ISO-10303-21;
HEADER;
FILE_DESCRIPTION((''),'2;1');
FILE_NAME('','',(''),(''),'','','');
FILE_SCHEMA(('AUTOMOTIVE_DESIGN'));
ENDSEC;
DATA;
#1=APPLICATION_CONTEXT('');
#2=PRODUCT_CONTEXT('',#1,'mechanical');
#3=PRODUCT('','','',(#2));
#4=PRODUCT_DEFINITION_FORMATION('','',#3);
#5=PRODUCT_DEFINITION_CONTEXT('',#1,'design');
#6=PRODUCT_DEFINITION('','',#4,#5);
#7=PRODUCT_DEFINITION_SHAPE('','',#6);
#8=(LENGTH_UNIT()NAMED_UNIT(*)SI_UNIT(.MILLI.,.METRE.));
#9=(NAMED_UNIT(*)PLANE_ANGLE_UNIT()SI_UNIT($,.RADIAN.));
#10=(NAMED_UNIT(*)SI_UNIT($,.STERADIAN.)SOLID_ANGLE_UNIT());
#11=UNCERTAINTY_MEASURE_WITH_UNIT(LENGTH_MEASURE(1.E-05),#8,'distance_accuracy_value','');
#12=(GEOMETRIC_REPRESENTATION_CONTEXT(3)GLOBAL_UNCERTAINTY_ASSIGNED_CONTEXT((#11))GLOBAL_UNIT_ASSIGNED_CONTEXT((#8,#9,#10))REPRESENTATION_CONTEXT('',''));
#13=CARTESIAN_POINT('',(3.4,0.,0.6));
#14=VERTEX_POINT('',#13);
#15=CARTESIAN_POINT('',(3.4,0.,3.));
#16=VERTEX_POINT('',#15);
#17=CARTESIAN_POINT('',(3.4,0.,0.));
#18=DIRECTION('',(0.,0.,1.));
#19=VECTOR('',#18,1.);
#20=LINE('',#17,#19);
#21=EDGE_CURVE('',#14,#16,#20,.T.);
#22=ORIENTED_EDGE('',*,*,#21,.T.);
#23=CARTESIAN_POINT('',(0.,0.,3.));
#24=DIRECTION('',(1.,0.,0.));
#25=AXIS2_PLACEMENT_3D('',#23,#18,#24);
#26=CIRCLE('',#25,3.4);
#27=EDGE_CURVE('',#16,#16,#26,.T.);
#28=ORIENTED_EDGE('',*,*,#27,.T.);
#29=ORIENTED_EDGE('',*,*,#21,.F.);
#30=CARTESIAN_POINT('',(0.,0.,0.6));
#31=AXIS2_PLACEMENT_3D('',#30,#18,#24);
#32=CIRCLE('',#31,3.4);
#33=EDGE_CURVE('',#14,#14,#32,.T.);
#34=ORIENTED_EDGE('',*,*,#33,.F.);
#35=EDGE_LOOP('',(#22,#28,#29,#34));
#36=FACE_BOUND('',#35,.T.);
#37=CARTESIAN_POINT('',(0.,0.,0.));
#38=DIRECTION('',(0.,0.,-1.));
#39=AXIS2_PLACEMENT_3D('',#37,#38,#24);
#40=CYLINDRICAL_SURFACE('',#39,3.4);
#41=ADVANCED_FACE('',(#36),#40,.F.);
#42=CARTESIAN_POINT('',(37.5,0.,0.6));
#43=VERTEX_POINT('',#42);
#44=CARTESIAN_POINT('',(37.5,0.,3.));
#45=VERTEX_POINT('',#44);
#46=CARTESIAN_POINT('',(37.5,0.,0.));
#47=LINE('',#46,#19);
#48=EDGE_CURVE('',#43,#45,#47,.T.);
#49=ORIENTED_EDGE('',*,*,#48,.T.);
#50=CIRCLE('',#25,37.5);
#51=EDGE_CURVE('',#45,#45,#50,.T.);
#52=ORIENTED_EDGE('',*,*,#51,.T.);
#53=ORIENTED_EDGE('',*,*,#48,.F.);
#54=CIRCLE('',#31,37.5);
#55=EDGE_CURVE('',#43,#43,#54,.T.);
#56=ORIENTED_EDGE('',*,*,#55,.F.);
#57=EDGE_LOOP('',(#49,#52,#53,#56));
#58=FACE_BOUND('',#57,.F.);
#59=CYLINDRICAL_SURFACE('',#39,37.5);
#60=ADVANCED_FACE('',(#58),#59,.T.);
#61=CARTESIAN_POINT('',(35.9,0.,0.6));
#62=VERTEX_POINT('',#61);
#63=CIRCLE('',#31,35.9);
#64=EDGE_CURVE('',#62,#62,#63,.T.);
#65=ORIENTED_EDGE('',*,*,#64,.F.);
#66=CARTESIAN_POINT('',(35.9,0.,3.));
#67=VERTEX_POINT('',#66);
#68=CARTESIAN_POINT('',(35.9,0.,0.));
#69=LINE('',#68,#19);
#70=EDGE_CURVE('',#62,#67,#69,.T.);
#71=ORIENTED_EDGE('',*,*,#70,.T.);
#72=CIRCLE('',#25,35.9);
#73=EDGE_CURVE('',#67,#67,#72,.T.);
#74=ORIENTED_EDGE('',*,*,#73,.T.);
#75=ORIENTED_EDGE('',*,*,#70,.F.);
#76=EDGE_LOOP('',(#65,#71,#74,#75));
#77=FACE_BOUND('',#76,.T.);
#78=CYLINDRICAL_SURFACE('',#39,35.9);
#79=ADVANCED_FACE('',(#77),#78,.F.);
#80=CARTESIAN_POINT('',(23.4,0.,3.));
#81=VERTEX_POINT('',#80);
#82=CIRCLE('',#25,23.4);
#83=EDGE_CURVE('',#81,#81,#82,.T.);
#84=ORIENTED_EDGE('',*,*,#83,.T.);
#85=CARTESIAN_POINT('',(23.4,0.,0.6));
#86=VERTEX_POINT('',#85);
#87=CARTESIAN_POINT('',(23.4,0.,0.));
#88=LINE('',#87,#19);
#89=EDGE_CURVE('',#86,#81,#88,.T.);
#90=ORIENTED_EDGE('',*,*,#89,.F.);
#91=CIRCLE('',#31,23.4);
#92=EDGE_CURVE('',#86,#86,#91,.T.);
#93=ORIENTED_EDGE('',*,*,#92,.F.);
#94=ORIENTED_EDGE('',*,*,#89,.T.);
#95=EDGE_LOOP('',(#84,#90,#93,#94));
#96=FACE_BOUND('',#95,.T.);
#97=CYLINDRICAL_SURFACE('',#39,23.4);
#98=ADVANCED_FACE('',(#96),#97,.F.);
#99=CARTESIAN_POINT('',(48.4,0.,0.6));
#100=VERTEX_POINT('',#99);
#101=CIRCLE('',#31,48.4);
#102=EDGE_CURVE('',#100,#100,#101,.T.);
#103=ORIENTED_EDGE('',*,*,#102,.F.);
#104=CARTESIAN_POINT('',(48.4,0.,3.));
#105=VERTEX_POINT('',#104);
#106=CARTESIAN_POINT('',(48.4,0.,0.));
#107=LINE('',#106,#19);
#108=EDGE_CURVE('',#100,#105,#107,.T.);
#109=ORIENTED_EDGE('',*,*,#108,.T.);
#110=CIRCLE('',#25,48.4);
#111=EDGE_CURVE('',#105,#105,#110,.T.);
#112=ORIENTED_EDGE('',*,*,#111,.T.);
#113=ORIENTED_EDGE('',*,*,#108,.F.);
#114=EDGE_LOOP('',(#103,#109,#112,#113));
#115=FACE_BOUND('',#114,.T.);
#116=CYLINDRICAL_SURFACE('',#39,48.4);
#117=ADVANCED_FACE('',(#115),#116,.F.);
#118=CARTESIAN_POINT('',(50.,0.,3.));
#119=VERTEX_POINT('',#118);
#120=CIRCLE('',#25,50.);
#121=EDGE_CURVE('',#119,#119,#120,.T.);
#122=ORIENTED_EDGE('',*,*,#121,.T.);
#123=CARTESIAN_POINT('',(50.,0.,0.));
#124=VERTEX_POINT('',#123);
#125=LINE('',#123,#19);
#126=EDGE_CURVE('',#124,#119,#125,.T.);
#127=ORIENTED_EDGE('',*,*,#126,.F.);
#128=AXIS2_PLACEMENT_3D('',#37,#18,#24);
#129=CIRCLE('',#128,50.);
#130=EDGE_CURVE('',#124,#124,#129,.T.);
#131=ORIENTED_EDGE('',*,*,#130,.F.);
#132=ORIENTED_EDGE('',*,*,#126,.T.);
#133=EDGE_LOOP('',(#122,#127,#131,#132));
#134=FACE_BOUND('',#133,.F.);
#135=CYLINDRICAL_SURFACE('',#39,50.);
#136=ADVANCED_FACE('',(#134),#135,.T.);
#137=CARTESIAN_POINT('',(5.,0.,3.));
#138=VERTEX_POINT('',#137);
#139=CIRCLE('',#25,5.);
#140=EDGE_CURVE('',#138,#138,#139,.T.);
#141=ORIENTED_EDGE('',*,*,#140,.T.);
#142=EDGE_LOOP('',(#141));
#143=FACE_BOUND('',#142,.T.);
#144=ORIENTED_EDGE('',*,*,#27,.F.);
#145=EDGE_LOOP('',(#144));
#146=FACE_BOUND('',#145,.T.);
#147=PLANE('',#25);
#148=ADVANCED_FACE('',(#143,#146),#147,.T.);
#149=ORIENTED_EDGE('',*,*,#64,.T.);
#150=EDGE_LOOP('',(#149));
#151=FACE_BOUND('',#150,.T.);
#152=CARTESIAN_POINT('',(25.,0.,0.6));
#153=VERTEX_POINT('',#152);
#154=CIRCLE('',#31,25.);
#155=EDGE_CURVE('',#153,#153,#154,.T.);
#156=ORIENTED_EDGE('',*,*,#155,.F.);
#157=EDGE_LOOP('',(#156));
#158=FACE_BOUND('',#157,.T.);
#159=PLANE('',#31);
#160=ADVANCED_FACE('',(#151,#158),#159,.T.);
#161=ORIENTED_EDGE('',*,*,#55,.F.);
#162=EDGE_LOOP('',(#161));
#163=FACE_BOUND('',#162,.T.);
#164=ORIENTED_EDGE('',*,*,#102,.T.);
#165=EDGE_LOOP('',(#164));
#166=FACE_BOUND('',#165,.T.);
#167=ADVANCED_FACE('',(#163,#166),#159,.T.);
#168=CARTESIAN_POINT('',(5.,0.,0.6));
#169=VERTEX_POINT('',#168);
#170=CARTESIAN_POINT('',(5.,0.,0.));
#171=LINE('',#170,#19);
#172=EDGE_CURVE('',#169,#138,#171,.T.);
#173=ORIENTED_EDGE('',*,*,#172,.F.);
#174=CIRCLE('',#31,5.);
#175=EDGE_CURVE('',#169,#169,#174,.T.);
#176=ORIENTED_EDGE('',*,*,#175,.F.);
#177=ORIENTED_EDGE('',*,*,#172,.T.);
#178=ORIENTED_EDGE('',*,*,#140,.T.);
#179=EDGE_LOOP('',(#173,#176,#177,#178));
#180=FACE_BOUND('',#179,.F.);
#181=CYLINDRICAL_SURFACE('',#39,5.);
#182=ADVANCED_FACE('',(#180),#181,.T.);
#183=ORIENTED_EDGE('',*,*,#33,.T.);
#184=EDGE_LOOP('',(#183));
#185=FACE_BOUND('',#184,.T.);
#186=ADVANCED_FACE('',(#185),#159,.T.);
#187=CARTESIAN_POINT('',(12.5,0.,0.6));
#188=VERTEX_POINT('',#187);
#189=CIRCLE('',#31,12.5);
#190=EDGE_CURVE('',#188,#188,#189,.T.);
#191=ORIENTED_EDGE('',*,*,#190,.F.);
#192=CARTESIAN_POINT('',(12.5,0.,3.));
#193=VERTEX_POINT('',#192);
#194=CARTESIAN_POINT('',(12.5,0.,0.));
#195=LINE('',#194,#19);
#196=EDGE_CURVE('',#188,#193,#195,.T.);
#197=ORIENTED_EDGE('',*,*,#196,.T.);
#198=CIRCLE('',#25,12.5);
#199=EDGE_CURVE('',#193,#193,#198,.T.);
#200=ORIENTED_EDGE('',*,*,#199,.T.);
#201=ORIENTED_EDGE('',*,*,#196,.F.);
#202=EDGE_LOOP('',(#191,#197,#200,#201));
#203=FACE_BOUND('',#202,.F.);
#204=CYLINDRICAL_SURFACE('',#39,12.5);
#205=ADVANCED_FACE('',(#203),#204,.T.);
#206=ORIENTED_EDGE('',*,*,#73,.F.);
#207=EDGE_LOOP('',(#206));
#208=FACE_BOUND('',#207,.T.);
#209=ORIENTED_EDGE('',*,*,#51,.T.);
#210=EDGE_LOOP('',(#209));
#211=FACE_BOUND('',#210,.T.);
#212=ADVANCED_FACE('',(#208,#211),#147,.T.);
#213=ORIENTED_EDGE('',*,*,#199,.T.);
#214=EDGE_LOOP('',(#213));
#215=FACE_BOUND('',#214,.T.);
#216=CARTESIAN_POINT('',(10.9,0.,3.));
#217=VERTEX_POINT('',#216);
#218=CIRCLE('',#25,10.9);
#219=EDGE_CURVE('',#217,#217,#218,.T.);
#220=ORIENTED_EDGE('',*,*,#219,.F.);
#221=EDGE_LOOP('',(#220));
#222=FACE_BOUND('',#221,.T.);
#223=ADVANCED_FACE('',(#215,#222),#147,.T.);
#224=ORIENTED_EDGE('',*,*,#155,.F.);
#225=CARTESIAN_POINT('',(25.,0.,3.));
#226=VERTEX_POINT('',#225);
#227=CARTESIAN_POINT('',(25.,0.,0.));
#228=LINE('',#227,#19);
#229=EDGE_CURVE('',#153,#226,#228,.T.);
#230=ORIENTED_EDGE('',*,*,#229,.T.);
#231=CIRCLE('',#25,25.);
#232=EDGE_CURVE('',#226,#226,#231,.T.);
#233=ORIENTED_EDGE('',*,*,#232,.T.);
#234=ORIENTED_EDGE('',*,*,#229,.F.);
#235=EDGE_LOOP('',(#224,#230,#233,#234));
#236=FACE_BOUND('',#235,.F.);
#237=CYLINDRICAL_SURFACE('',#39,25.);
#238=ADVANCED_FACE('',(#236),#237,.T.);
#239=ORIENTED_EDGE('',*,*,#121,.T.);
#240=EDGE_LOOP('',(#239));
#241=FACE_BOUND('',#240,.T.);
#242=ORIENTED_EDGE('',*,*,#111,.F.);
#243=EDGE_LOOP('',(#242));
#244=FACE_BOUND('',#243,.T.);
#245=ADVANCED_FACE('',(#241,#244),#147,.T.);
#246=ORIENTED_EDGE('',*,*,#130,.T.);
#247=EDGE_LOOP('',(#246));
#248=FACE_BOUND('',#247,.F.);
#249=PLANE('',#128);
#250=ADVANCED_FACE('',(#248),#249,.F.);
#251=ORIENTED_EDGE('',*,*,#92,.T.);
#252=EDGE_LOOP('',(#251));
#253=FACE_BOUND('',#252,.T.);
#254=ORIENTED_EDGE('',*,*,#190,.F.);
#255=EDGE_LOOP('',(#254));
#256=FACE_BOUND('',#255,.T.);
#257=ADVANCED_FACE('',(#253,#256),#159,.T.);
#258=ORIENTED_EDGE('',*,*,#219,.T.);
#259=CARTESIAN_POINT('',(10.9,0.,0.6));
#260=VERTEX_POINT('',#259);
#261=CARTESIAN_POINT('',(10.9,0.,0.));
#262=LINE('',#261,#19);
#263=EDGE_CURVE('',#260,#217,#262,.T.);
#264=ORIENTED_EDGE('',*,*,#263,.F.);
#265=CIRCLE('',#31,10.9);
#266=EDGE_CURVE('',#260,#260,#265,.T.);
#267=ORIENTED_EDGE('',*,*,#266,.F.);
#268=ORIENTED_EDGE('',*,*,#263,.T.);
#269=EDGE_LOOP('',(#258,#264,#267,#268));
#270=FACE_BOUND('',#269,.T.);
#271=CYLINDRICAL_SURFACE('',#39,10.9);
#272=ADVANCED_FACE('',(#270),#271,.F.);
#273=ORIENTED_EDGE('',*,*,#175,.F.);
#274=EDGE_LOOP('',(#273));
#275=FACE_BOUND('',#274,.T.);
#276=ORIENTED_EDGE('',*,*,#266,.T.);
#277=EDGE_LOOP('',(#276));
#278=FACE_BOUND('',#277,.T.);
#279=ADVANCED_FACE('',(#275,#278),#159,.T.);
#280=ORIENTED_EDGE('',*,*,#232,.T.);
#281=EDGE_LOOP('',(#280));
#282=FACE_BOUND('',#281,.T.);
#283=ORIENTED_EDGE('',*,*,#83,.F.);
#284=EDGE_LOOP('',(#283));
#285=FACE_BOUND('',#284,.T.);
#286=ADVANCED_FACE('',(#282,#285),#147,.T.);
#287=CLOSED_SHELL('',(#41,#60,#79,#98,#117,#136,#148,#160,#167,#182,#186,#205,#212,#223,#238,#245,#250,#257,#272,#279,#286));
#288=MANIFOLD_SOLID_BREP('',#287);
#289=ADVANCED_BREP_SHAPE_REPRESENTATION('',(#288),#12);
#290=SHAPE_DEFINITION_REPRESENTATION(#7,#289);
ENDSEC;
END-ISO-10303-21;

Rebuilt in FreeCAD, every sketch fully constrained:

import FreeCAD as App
import Part
import Sketcher
from FreeCAD import Vector

doc = App.newDocument("Part")
body = doc.addObject("PartDesign::Body", "Body")
body.AllowCompound = True

# Sketch on XY plane
sketch1 = body.newObject("Sketcher::SketchObject", "Sketch")
sketch1.AttachmentSupport = (doc.getObject("XY_Plane"), [""])
sketch1.MapMode = "FlatFace"
sketch1.addGeometry([
    Part.Circle(Vector(0, 0, 0), Vector(0, 0, 1), 50),  # 0
    Part.Circle(Vector(0, 0, 0), Vector(0, 0, 1), 48.4),  # 1
    Part.Circle(Vector(0, 0, 0), Vector(0, 0, 1), 37.5),  # 2
    Part.Circle(Vector(0, 0, 0), Vector(0, 0, 1), 35.9),  # 3
    Part.Circle(Vector(0, 0, 0), Vector(0, 0, 1), 25),  # 4
    Part.Circle(Vector(0, 0, 0), Vector(0, 0, 1), 23.4),  # 5
    Part.Circle(Vector(0, 0, 0), Vector(0, 0, 1), 12.5),  # 6
    Part.Circle(Vector(0, 0, 0), Vector(0, 0, 1), 10.9),  # 7
    Part.Circle(Vector(0, 0, 0), Vector(0, 0, 1), 5),  # 8
    Part.Circle(Vector(0, 0, 0), Vector(0, 0, 1), 3.4),  # 9
], False)
sketch1.addConstraint([
    Sketcher.Constraint("Coincident", 0, 3, -1, 1),
    Sketcher.Constraint("Coincident", 1, 3, -1, 1),
    Sketcher.Constraint("Coincident", 2, 3, -1, 1),
    Sketcher.Constraint("Coincident", 3, 3, -1, 1),
    Sketcher.Constraint("Coincident", 4, 3, -1, 1),
    Sketcher.Constraint("Coincident", 5, 3, -1, 1),
    Sketcher.Constraint("Coincident", 6, 3, -1, 1),
    Sketcher.Constraint("Coincident", 7, 3, -1, 1),
    Sketcher.Constraint("Coincident", 8, 3, -1, 1),
    Sketcher.Constraint("Coincident", 9, 3, -1, 1),
    Sketcher.Constraint("Diameter", 0, 100.0),
    Sketcher.Constraint("Diameter", 2, 75.0),
    Sketcher.Constraint("Diameter", 4, 50.0),
    Sketcher.Constraint("Diameter", 6, 25.0),
    Sketcher.Constraint("Diameter", 8, 10.0),
    Sketcher.Constraint("Diameter", 1, 96.8),
    Sketcher.Constraint("Diameter", 3, 71.8),
    Sketcher.Constraint("Diameter", 5, 46.8),
    Sketcher.Constraint("Diameter", 7, 21.8),
    Sketcher.Constraint("Diameter", 9, 6.8),
])
pad1 = body.newObject("PartDesign::Pad", "Pad")
pad1.Profile = sketch1
pad1.Length = 3

# Sketch on XY plane
sketch2 = body.newObject("Sketcher::SketchObject", "Sketch001")
sketch2.AttachmentSupport = (doc.getObject("XY_Plane"), [""])
sketch2.MapMode = "FlatFace"
sketch2.addGeometry([
    Part.Circle(Vector(0, 0, 0), Vector(0, 0, 1), 48.4),  # 0
    Part.Circle(Vector(0, 0, 0), Vector(0, 0, 1), 37.5),  # 1
    Part.Circle(Vector(0, 0, 0), Vector(0, 0, 1), 35.9),  # 2
    Part.Circle(Vector(0, 0, 0), Vector(0, 0, 1), 25),  # 3
    Part.Circle(Vector(0, 0, 0), Vector(0, 0, 1), 23.4),  # 4
    Part.Circle(Vector(0, 0, 0), Vector(0, 0, 1), 12.5),  # 5
    Part.Circle(Vector(0, 0, 0), Vector(0, 0, 1), 10.9),  # 6
    Part.Circle(Vector(0, 0, 0), Vector(0, 0, 1), 5),  # 7
    Part.Circle(Vector(0, 0, 0), Vector(0, 0, 1), 3.4),  # 8
], False)
sketch2.addConstraint([
    Sketcher.Constraint("Coincident", 0, 3, -1, 1),
    Sketcher.Constraint("Coincident", 1, 3, -1, 1),
    Sketcher.Constraint("Coincident", 2, 3, -1, 1),
    Sketcher.Constraint("Coincident", 3, 3, -1, 1),
    Sketcher.Constraint("Coincident", 4, 3, -1, 1),
    Sketcher.Constraint("Coincident", 5, 3, -1, 1),
    Sketcher.Constraint("Coincident", 6, 3, -1, 1),
    Sketcher.Constraint("Coincident", 7, 3, -1, 1),
    Sketcher.Constraint("Coincident", 8, 3, -1, 1),
    Sketcher.Constraint("Diameter", 1, 75.0),
    Sketcher.Constraint("Diameter", 3, 50.0),
    Sketcher.Constraint("Diameter", 5, 25.0),
    Sketcher.Constraint("Diameter", 7, 10.0),
    Sketcher.Constraint("Diameter", 0, 96.8),
    Sketcher.Constraint("Diameter", 2, 71.8),
    Sketcher.Constraint("Diameter", 4, 46.8),
    Sketcher.Constraint("Diameter", 6, 21.8),
    Sketcher.Constraint("Diameter", 8, 6.8),
])
pad2 = body.newObject("PartDesign::Pad", "Pad001")
pad2.Profile = sketch2
pad2.Length = 0.6

doc.recompute()
